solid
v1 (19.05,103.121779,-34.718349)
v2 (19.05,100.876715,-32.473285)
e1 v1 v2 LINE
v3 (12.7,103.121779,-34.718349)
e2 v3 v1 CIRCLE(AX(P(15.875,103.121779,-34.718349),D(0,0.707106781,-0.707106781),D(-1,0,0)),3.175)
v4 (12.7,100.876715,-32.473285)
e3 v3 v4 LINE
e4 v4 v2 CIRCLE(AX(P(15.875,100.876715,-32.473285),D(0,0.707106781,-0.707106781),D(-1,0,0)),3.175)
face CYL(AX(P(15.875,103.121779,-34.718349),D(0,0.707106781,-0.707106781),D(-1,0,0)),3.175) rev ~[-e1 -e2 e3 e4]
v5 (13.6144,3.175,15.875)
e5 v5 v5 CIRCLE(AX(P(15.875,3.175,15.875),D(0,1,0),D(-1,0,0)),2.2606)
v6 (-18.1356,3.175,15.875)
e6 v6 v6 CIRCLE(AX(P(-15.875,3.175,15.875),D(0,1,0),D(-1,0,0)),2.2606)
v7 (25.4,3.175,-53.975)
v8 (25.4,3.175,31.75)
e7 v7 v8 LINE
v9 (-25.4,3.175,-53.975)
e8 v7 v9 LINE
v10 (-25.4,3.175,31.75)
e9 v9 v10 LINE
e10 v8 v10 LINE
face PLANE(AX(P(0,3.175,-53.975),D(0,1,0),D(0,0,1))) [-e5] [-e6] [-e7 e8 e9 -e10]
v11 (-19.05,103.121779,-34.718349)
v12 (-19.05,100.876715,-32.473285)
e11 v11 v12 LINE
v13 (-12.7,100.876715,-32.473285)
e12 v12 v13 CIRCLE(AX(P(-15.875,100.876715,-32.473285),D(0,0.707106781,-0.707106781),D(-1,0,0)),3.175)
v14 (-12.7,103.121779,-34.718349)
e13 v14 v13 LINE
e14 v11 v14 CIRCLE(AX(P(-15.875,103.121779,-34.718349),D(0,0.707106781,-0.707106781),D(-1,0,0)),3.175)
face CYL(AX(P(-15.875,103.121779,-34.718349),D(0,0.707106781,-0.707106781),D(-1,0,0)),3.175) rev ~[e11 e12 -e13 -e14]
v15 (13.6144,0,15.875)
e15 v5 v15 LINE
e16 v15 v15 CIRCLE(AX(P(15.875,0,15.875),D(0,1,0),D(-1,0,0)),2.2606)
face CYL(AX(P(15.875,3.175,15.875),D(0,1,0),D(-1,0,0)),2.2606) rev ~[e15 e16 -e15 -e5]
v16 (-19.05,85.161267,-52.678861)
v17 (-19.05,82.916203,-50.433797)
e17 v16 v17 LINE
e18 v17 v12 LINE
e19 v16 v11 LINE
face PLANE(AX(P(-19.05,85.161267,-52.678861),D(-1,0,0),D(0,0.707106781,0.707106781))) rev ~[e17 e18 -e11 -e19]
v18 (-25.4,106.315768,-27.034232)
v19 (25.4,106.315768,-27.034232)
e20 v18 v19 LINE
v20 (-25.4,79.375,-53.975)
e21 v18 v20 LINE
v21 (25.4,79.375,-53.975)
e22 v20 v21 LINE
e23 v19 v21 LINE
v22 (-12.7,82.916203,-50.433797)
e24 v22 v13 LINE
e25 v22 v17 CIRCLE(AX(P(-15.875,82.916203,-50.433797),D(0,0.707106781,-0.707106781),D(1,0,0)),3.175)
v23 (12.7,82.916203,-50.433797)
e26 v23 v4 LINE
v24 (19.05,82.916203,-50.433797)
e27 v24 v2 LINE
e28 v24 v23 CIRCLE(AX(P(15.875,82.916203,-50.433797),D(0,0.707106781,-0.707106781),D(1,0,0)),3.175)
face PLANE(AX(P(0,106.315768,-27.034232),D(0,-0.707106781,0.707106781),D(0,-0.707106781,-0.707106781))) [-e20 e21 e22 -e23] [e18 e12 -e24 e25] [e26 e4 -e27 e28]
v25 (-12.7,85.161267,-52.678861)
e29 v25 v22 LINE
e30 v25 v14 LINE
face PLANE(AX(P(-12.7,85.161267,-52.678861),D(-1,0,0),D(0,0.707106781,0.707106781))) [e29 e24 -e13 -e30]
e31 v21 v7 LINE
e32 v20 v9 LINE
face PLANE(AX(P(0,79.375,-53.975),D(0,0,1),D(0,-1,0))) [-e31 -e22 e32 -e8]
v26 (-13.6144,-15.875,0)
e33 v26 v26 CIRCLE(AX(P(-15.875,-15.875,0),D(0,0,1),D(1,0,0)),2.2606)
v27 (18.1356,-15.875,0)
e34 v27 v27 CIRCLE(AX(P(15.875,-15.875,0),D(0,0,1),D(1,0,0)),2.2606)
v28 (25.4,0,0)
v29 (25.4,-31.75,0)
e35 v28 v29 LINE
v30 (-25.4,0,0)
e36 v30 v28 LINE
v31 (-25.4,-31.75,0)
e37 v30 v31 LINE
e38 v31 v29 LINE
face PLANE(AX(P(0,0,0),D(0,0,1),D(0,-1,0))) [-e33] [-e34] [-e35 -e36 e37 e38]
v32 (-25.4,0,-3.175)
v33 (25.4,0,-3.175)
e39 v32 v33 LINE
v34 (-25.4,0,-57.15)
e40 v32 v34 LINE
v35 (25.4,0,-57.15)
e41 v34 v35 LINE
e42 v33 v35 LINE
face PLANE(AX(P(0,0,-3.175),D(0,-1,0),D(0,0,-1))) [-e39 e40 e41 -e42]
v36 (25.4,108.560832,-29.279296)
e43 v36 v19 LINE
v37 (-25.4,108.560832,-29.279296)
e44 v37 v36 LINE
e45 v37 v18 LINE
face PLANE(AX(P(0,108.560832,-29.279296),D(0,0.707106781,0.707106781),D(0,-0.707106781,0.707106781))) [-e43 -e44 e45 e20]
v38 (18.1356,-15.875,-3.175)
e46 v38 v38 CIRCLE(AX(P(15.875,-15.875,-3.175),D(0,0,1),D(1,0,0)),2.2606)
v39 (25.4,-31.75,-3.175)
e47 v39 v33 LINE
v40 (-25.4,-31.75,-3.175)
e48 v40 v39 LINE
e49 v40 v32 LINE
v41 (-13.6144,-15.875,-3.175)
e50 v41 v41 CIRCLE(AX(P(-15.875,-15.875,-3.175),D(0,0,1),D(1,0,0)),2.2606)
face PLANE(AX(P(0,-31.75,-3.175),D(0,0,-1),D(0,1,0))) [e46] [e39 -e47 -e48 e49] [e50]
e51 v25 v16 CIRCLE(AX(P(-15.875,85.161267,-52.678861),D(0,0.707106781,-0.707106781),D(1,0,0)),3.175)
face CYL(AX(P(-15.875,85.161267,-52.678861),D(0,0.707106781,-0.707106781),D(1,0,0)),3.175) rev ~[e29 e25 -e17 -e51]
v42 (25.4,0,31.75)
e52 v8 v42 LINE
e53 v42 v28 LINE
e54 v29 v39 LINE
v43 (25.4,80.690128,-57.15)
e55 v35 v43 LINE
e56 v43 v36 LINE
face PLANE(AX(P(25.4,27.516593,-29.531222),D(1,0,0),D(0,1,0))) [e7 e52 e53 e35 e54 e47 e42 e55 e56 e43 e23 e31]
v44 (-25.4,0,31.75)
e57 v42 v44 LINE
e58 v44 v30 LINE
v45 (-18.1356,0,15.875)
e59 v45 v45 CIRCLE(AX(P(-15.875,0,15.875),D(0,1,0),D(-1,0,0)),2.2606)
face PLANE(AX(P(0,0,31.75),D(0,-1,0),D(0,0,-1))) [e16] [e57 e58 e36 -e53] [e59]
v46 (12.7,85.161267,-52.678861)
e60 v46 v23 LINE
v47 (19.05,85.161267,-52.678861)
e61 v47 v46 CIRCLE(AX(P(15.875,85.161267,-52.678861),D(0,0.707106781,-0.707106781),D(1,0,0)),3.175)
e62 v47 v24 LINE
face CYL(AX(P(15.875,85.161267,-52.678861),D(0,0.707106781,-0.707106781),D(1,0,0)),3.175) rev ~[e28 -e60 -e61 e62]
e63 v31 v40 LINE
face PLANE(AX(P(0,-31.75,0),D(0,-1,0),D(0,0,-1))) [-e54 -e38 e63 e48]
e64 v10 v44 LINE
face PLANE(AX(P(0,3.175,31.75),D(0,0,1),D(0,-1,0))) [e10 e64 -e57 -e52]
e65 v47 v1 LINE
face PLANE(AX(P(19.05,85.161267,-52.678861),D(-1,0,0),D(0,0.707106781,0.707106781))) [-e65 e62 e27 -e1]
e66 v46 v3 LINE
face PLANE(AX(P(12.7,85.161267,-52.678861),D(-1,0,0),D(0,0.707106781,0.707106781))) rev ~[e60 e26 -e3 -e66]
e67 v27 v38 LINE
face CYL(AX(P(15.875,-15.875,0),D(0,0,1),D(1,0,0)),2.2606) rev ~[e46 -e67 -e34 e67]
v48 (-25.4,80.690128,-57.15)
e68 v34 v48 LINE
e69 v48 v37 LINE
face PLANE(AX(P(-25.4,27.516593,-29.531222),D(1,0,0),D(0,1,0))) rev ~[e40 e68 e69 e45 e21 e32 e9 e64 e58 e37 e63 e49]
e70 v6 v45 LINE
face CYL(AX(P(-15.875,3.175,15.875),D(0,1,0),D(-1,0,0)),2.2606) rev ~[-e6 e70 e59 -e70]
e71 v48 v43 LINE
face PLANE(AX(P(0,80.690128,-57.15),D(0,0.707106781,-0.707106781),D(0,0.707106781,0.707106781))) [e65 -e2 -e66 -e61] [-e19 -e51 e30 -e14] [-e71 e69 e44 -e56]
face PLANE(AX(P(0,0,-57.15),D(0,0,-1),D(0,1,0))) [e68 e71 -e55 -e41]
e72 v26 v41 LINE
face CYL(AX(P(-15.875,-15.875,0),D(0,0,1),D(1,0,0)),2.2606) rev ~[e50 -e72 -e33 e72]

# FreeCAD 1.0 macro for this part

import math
import FreeCAD as App
import Part
import Sketcher
from FreeCAD import Vector
Q = App.Units.Quantity

doc = App.newDocument("Part")
body = doc.addObject("PartDesign::Body", "Body")

# Sketch on YZ plane
sketch1 = doc.addObject("Sketcher::SketchObject", "Sketch")
body.addObject(sketch1)
sketch1.AttachmentSupport = (doc.YZ_Plane, [""])
sketch1.MapMode = "FlatFace"
sketch1.addGeometry([
    Part.LineSegment(Vector(0, 31.8, 0), Vector(0, 0, 0)),  # 0
    Part.LineSegment(Vector(0, 0, 0), Vector(-31.8, 0, 0)),  # 1
    Part.LineSegment(Vector(-31.8, 0, 0), Vector(-31.8, -3.2, 0)),  # 2
    Part.LineSegment(Vector(-31.8, -3.2, 0), Vector(0, -3.2, 0)),  # 3
    Part.LineSegment(Vector(0, -3.2, 0), Vector(0, -57.1, 0)),  # 4
    Part.LineSegment(Vector(0, -57.1, 0), Vector(80.7, -57.1, 0)),  # 5
    Part.LineSegment(Vector(80.7, -57.1, 0), Vector(108.6, -29.3, 0)),  # 6
    Part.LineSegment(Vector(108.6, -29.3, 0), Vector(106.3, -27, 0)),  # 7
    Part.LineSegment(Vector(106.3, -27, 0), Vector(79.4, -54, 0)),  # 8
    Part.LineSegment(Vector(79.4, -54, 0), Vector(3.2, -54, 0)),  # 9
    Part.LineSegment(Vector(3.2, -54, 0), Vector(3.2, 31.8, 0)),  # 10
    Part.LineSegment(Vector(3.2, 31.8, 0), Vector(0, 31.8, 0)),  # 11
], False)
sketch1.addConstraint([
    Sketcher.Constraint("Coincident", 0, 2, 1, 1),
    Sketcher.Constraint("Coincident", 1, 2, 2, 1),
    Sketcher.Constraint("Coincident", 2, 2, 3, 1),
    Sketcher.Constraint("Coincident", 3, 2, 4, 1),
    Sketcher.Constraint("Coincident", 4, 2, 5, 1),
    Sketcher.Constraint("Coincident", 5, 2, 6, 1),
    Sketcher.Constraint("Coincident", 6, 2, 7, 1),
    Sketcher.Constraint("Coincident", 7, 2, 8, 1),
    Sketcher.Constraint("Coincident", 8, 2, 9, 1),
    Sketcher.Constraint("Coincident", 9, 2, 10, 1),
    Sketcher.Constraint("Coincident", 10, 2, 11, 1),
    Sketcher.Constraint("Coincident", 11, 2, 0, 1),
    Sketcher.Constraint("Vertical", 0),
    Sketcher.Constraint("Horizontal", 1),
    Sketcher.Constraint("Vertical", 2),
    Sketcher.Constraint("Horizontal", 3),
    Sketcher.Constraint("Vertical", 4),
    Sketcher.Constraint("Horizontal", 5),
    Sketcher.Constraint("Horizontal", 9),
    Sketcher.Constraint("Vertical", 10),
    Sketcher.Constraint("Horizontal", 11),
    Sketcher.Constraint("Coincident", 0, 2, -1, 1),
    Sketcher.Constraint("PointOnObject", 3, 2, -2),
    Sketcher.Constraint("Perpendicular", 6, 7),
    Sketcher.Constraint("Perpendicular", 7, 8),
    Sketcher.Constraint("Equal", 3, 0),
    Sketcher.Constraint("Equal", 11, 2),
    Sketcher.Constraint("DistanceX", 9, 2, 9, 1, Q("3 in")),
    Sketcher.Constraint("Angle", 6, Q("45 deg")),
    Sketcher.Constraint("DistanceY", 8, 2, 3, 2, Q("2 in")),
    Sketcher.Constraint("Distance", 8, Q("1.5 in")),
    Sketcher.Constraint("DistanceX", 1, 2, 1, 1, Q("1.25 in")),
    Sketcher.Constraint("DistanceX", 11, 2, 11, 1, Q("0.125 in")),
    Sketcher.Constraint("DistanceY", 4, 2, 4, 1, Q("2.125 in")),
    Sketcher.Constraint("Distance", 7, Q("0.125 in")),
])
pad1 = doc.addObject("PartDesign::Pad", "Pad")
body.addObject(pad1)
pad1.Profile = sketch1
pad1.Length = Q("2 in")
pad1.Midplane = True

# Sketch on XZ plane
sketch2 = doc.addObject("Sketcher::SketchObject", "Sketch001")
body.addObject(sketch2)
sketch2.AttachmentSupport = (doc.XZ_Plane, [""])
sketch2.MapMode = "FlatFace"
sketch2.AttachmentOffset = App.Placement(Vector(0, 0, -0.125 * 25.4), App.Rotation())
sketch2.addGeometry([
    Part.Circle(Vector(-15.9, 15.9, 0), Vector(0, 0, 1), 2.3),
    Part.Circle(Vector(15.9, 15.9, 0), Vector(0, 0, 1), 2.3),
], False)
sketch2.addConstraint([
    Sketcher.Constraint("Equal", 0, 1),
    Sketcher.Constraint("Symmetric", 0, 3, 1, 3, -2),
    Sketcher.Constraint("Diameter", 0, Q("0.178 in")),
    Sketcher.Constraint("DistanceX", 0, 3, 1, 3, Q("1.25 in")),
    Sketcher.Constraint("DistanceY", -1, 1, 0, 3, Q("0.625 in")),
])
pocket1 = doc.addObject("PartDesign::Pocket", "Pocket")
body.addObject(pocket1)
pocket1.Profile = sketch2
pocket1.Type = "ThroughAll"
pocket1.Reversed = True

# Sketch on XY plane
sketch3 = doc.addObject("Sketcher::SketchObject", "Sketch002")
body.addObject(sketch3)
sketch3.AttachmentSupport = (doc.XY_Plane, [""])
sketch3.MapMode = "FlatFace"
sketch3.addGeometry([
    Part.Circle(Vector(15.9, -15.9, 0), Vector(0, 0, 1), 2.3),
    Part.Circle(Vector(-15.9, -15.9, 0), Vector(0, 0, 1), 2.3),
], False)
sketch3.addConstraint([
    Sketcher.Constraint("Equal", 0, 1),
    Sketcher.Constraint("Symmetric", 0, 3, 1, 3, -2),
    Sketcher.Constraint("Diameter", 0, Q("0.178 in")),
    Sketcher.Constraint("DistanceX", 1, 3, 0, 3, Q("1.25 in")),
    Sketcher.Constraint("DistanceY", 0, 3, -1, 1, Q("0.625 in")),
])
pocket2 = doc.addObject("PartDesign::Pocket", "Pocket001")
body.addObject(pocket2)
pocket2.Profile = sketch3
pocket2.Type = "ThroughAll"

# Sketch on an angled plane
sketch4 = doc.addObject("Sketcher::SketchObject", "Sketch003")
body.addObject(sketch4)
sketch4.Placement = App.Placement(Vector(0, 68.920064, -68.920064), App.Rotation(Vector(-1, 0, 0), Vector(0, 0.707106781, 0.707106781), Vector(0, 0.707106781, -0.707106781), "ZXY"))
sketch4.addGeometry([
    Part.ArcOfCircle(Part.Circle(Vector(-15.9, 48.4, 0), Vector(0, 0, 1), 3.2), math.radians(0), math.radians(180)),  # 0
    Part.LineSegment(Vector(-19.1, 48.4, 0), Vector(-19.1, 23, 0)),  # 1
    Part.ArcOfCircle(Part.Circle(Vector(-15.9, 23, 0), Vector(0, 0, 1), 3.2), math.radians(180), math.radians(360)),  # 2
    Part.LineSegment(Vector(-12.7, 23, 0), Vector(-12.7, 48.4, 0)),  # 3
    Part.ArcOfCircle(Part.Circle(Vector(15.9, 48.4, 0), Vector(0, 0, 1), 3.2), math.radians(0), math.radians(180)),  # 4
    Part.LineSegment(Vector(12.7, 48.4, 0), Vector(12.7, 23, 0)),  # 5
    Part.ArcOfCircle(Part.Circle(Vector(15.9, 23, 0), Vector(0, 0, 1), 3.2), math.radians(180), math.radians(360)),  # 6
    Part.LineSegment(Vector(19.1, 23, 0), Vector(19.1, 48.4, 0)),  # 7
], False)
sketch4.addConstraint([
    Sketcher.Constraint("Tangent", 0, 2, 1, 1),
    Sketcher.Constraint("Tangent", 1, 2, 2, 1),
    Sketcher.Constraint("Tangent", 2, 2, 3, 1),
    Sketcher.Constraint("Tangent", 3, 2, 0, 1),
    Sketcher.Constraint("Tangent", 4, 2, 5, 1),
    Sketcher.Constraint("Tangent", 5, 2, 6, 1),
    Sketcher.Constraint("Tangent", 6, 2, 7, 1),
    Sketcher.Constraint("Tangent", 7, 2, 4, 1),
    Sketcher.Constraint("Vertical", 1),
    Sketcher.Constraint("Vertical", 3),
    Sketcher.Constraint("Vertical", 5),
    Sketcher.Constraint("Vertical", 7),
    Sketcher.Constraint("Equal", 2, 4),
    Sketcher.Constraint("Symmetric", 0, 3, 4, 3, -2),
    Sketcher.Constraint("Horizontal", 2, 3, 6, 3),
    Sketcher.Constraint("DistanceY", 1, 2, 1, 1, Q("1 in")),
    Sketcher.Constraint("Radius", 0, Q("0.125 in")),
    Sketcher.Constraint("DistanceX", 3, 2, 4, 2, Q("1 in")),
    Sketcher.Constraint("DistanceY", -1, 1, 0, 3, Q("48.368529 mm")),
])
pocket3 = doc.addObject("PartDesign::Pocket", "Pocket002")
body.addObject(pocket3)
pocket3.Profile = sketch4
pocket3.Length = Q("0.125 in")

doc.recompute()
